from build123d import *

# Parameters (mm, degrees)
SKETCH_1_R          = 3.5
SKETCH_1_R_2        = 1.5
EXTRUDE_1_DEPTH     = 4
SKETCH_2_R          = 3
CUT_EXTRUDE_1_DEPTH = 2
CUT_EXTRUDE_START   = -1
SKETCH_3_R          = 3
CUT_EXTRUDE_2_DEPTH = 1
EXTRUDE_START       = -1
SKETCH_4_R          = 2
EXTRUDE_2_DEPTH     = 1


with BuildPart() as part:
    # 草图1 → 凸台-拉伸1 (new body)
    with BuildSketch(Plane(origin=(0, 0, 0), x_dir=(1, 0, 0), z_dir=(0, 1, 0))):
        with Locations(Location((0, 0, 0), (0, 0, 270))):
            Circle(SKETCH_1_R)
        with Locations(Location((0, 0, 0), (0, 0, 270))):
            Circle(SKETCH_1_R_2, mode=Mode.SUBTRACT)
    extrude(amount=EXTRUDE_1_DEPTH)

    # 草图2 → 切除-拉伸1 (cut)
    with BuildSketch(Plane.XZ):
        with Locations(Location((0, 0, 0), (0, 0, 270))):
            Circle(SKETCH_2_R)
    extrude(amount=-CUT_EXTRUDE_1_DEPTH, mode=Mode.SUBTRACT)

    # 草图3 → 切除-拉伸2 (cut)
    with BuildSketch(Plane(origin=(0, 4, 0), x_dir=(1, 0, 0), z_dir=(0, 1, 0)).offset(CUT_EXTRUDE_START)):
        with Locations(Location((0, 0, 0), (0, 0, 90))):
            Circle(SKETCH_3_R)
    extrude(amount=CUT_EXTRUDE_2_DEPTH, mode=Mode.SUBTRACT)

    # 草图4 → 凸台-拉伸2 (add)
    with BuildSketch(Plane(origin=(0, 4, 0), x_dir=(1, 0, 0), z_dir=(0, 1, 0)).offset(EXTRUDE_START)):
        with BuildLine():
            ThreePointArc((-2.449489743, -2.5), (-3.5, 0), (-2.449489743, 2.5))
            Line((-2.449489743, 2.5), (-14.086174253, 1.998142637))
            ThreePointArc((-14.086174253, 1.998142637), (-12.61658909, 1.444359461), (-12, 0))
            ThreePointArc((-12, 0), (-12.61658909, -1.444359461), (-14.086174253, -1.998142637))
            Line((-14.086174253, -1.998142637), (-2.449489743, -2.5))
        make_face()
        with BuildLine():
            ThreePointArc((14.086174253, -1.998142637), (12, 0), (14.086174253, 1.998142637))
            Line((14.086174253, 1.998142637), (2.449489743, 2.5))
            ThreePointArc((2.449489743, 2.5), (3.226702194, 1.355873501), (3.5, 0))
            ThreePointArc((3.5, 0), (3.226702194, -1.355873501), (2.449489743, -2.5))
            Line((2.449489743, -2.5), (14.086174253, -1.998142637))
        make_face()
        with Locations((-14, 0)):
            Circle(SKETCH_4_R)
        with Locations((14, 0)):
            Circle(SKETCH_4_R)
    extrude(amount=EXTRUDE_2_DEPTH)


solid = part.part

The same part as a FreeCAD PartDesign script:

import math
import FreeCAD as App
import Part
import Sketcher
from FreeCAD import Vector

doc = App.newDocument("Part")
body = doc.addObject("PartDesign::Body", "Body")

sketch1 = body.newObject("Sketcher::SketchObject", "Sketch")
sketch1.AttachmentSupport = (doc.getObject("XZ_Plane"), [""])
sketch1.MapMode = "FlatFace"
sketch1.addGeometry([
    Part.Circle(Vector(0, 0, 0), Vector(0, 0, 1), 3.5),
    Part.Circle(Vector(0, 0, 0), Vector(0, 0, 1), 1.5),
], False)
sketch1.addConstraint([
    Sketcher.Constraint("Coincident", 0, 3, -1, 1),
    Sketcher.Constraint("Coincident", 1, 3, -1, 1),
    Sketcher.Constraint("Diameter", 0, 7.0),
    Sketcher.Constraint("Diameter", 1, 3.0),
])
pad1 = body.newObject("PartDesign::Pad", "Pad")
pad1.Profile = sketch1
pad1.Length = 4
pad1.Reversed = True

sketch2 = body.newObject("Sketcher::SketchObject", "Sketch001")
sketch2.AttachmentSupport = (doc.getObject("XZ_Plane"), [""])
sketch2.MapMode = "FlatFace"
sketch2.addGeometry(Part.Circle(Vector(0, 0, 0), Vector(0, 0, 1), 3), False)
sketch2.addConstraint([
    Sketcher.Constraint("Coincident", 0, 3, -1, 1),
    Sketcher.Constraint("Diameter", 0, 6.0),
])
pocket1 = body.newObject("PartDesign::Pocket", "Pocket")
pocket1.Profile = sketch2
pocket1.Length = 2

sketch3 = body.newObject("Sketcher::SketchObject", "Sketch002")
sketch3.AttachmentSupport = (doc.getObject("XZ_Plane"), [""])
sketch3.MapMode = "FlatFace"
sketch3.AttachmentOffset = App.Placement(Vector(0, 0, -3), App.Rotation())
sketch3.addGeometry(Part.Circle(Vector(0, 0, 0), Vector(0, 0, 1), 3), False)
sketch3.addConstraint([
    Sketcher.Constraint("Coincident", 0, 3, -1, 1),
    Sketcher.Constraint("Diameter", 0, 6.0),
])
pocket2 = body.newObject("PartDesign::Pocket", "Pocket001")
pocket2.Profile = sketch3
pocket2.Length = 1

sketch4 = body.newObject("Sketcher::SketchObject", "Sketch003")
sketch4.AttachmentSupport = (doc.getObject("XZ_Plane"), [""])
sketch4.MapMode = "FlatFace"
sketch4.AttachmentOffset = App.Placement(Vector(0, 0, -3), App.Rotation())
sketch4.addGeometry([
    Part.ArcOfCircle(Part.Circle(Vector(0, 0, 0), Vector(0, 0, 1), 3.5), math.radians(134), math.radians(226)),
    Part.LineSegment(Vector(-2.4, -2.5, 0), Vector(-14.1, -2, 0)),
    Part.ArcOfCircle(Part.Circle(Vector(-14, 0, 0), Vector(0, 0, 1), 2), math.radians(92), math.radians(268)),
    Part.LineSegment(Vector(-14.1, 2, 0), Vector(-2.4, 2.5, 0)),
    Part.LineSegment(Vector(14.1, -2, 0), Vector(2.4, -2.5, 0)),
    Part.ArcOfCircle(Part.Circle(Vector(0, 0, 0), Vector(0, 0, 1), 3.5), math.radians(-46), math.radians(0)),
    Part.ArcOfCircle(Part.Circle(Vector(0, 0, 0), Vector(0, 0, 1), 3.5), math.radians(0), math.radians(46)),
    Part.LineSegment(Vector(2.4, 2.5, 0), Vector(14.1, 2, 0)),
    Part.ArcOfCircle(Part.Circle(Vector(14, 0, 0), Vector(0, 0, 1), 2), math.radians(-88), math.radians(88)),
], False)
sketch4.addConstraint([
    Sketcher.Constraint("Coincident", 0, 2, 1, 1),
    Sketcher.Constraint("Tangent", 1, 2, 2, 2),
    Sketcher.Constraint("Tangent", 2, 1, 3, 1),
    Sketcher.Constraint("Coincident", 3, 2, 0, 1),
    Sketcher.Constraint("Coincident", 4, 2, 5, 1),
    Sketcher.Constraint("Tangent", 5, 2, 6, 1),
    Sketcher.Constraint("Coincident", 6, 2, 7, 1),
    Sketcher.Constraint("Tangent", 7, 2, 8, 2),
    Sketcher.Constraint("Tangent", 8, 1, 4, 1),
    Sketcher.Constraint("Coincident", 0, 3, -1, 1),
    Sketcher.Constraint("Coincident", 5, 3, -1, 1),
    Sketcher.Constraint("Equal", 0, 5),
    Sketcher.Constraint("Equal", 5, 6),
    Sketcher.Constraint("Equal", 2, 8),
    Sketcher.Constraint("Symmetric", 2, 3, 8, 3, -1, 1),
    Sketcher.Constraint("Symmetric", 2, 1, 7, 2, -2),
    Sketcher.Constraint("PointOnObject", 5, 2, -1),
    Sketcher.Constraint("Parallel", 3, 4),
    Sketcher.Constraint("Parallel", 1, 7),
    Sketcher.Constraint("Radius", 2, 2.0),
    Sketcher.Constraint("Radius", 0, 3.5),
    Sketcher.Constraint("DistanceX", 2, 3, -1, 1, 14.0),
    Sketcher.Constraint("DistanceY", 0, 2, 3, 2, 5.0),
])
pad2 = body.newObject("PartDesign::Pad", "Pad001")
pad2.Profile = sketch4
pad2.Length = 1
pad2.Reversed = True

doc.recompute()
